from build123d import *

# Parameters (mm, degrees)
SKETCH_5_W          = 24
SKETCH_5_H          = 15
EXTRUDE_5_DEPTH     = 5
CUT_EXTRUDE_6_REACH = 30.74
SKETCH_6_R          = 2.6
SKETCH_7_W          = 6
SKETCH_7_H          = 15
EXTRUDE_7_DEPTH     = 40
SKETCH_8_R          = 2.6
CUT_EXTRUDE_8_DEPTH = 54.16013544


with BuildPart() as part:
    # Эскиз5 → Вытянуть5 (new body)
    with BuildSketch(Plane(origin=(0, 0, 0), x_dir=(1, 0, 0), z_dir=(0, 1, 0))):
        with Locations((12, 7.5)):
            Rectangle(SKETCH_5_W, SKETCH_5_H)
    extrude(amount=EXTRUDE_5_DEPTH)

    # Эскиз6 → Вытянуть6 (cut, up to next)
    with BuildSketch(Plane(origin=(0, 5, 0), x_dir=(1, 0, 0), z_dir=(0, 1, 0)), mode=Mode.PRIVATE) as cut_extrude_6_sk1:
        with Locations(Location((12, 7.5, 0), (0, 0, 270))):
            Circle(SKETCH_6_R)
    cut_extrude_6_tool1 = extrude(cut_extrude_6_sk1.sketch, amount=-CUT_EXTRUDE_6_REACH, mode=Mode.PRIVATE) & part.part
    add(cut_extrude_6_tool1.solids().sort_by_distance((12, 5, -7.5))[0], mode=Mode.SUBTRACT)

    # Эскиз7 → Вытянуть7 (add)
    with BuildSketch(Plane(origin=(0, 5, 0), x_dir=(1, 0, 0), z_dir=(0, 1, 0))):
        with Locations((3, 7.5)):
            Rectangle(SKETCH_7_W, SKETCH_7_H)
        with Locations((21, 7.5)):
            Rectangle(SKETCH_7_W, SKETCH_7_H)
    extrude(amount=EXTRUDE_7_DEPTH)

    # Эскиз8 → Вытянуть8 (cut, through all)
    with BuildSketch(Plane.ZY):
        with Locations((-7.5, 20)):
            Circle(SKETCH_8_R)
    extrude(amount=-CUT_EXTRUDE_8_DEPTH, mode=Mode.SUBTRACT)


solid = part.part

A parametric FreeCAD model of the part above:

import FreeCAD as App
import Part
import Sketcher
Q = App.Units.Quantity

doc = App.newDocument("Part")
params = doc.addObject("Spreadsheet::Sheet", "Params")
for row, (alias, value) in enumerate([
    ("sketch1_width", "24 mm"),
    ("sketch1_height", "15 mm"),
    ("pad1_length", "5 mm"),
    ("sketch2_diameter", "5.2 mm"),
    ("sketch3_width", "6 mm"),
    ("sketch3_height", "15 mm"),
    ("pad2_length", "40 mm"),
    ("sketch4_diameter", "5.2 mm"),
], start=1):
    params.set(f"A{row}", alias)
    params.set(f"B{row}", "=" + value)
    params.setAlias(f"B{row}", alias)

body = doc.addObject("PartDesign::Body", "Body")

# Sketch on XZ plane
sketch1 = body.newObject("Sketcher::SketchObject", "Sketch")
sketch1.AttachmentSupport = (doc.getObject("XZ_Plane"), [""])
sketch1.MapMode = "FlatFace"
sketch1.addGeometry(Part.LineSegment(App.Vector(0, -15, 0), App.Vector(0, 0, 0)), False)
sketch1.addGeometry(Part.LineSegment(App.Vector(0, 0, 0), App.Vector(24, 0, 0)), False)
sketch1.addGeometry(Part.LineSegment(App.Vector(24, 0, 0), App.Vector(24, -15, 0)), False)
sketch1.addGeometry(Part.LineSegment(App.Vector(24, -15, 0), App.Vector(0, -15, 0)), False)
sketch1.addConstraint(Sketcher.Constraint("Coincident", 0, 2, 1, 1))
sketch1.addConstraint(Sketcher.Constraint("Coincident", 1, 2, 2, 1))
sketch1.addConstraint(Sketcher.Constraint("Coincident", 2, 2, 3, 1))
sketch1.addConstraint(Sketcher.Constraint("Coincident", 3, 2, 0, 1))
sketch1.addConstraint(Sketcher.Constraint("Vertical", 0))
sketch1.addConstraint(Sketcher.Constraint("Horizontal", 1))
sketch1.addConstraint(Sketcher.Constraint("Vertical", 2))
sketch1.addConstraint(Sketcher.Constraint("Horizontal", 3))
sketch1.addConstraint(Sketcher.Constraint("Coincident", 0, 2, -1, 1))
sketch1.addConstraint(Sketcher.Constraint("DistanceX", 1, 1, 1, 2, Q("24 mm")))
sketch1.addConstraint(Sketcher.Constraint("DistanceY", 0, 1, 0, 2, Q("15 mm")))
sketch1.setExpression("Constraints[9]", "Params.sketch1_width")
sketch1.setExpression("Constraints[10]", "Params.sketch1_height")
pad1 = body.newObject("PartDesign::Pad", "Pad")
pad1.Profile = sketch1
pad1.setExpression("Length", "Params.pad1_length")
pad1.Reversed = True

# Sketch on XZ plane
sketch2 = body.newObject("Sketcher::SketchObject", "Sketch001")
sketch2.AttachmentSupport = (doc.getObject("XZ_Plane"), [""])
sketch2.MapMode = "FlatFace"
sketch2.AttachmentOffset = App.Placement(App.Vector(0, 0, -5), App.Rotation())
sketch2.addGeometry(Part.Circle(App.Vector(12, -7.5, 0), App.Vector(0, 0, 1), 2.6), False)
sketch2.addConstraint(Sketcher.Constraint("Diameter", 0, Q("5.2 mm")))
sketch2.addConstraint(Sketcher.Constraint("DistanceX", -1, 1, 0, 3, Q("12 mm")))
sketch2.addConstraint(Sketcher.Constraint("DistanceY", 0, 3, -1, 1, Q("7.5 mm")))
sketch2.setExpression("Constraints[0]", "Params.sketch2_diameter")
pocket1 = body.newObject("PartDesign::Pocket", "Pocket")
pocket1.Profile = sketch2
pocket1.Type = "UpToFirst"
pocket1.Reversed = True

# Sketch on XZ plane
sketch3 = body.newObject("Sketcher::SketchObject", "Sketch002")
sketch3.AttachmentSupport = (doc.getObject("XZ_Plane"), [""])
sketch3.MapMode = "FlatFace"
sketch3.AttachmentOffset = App.Placement(App.Vector(0, 0, -5), App.Rotation())
sketch3.addGeometry(Part.LineSegment(App.Vector(0, -15, 0), App.Vector(0, 0, 0)), False)
sketch3.addGeometry(Part.LineSegment(App.Vector(0, 0, 0), App.Vector(6, 0, 0)), False)
sketch3.addGeometry(Part.LineSegment(App.Vector(6, 0, 0), App.Vector(6, -15, 0)), False)
sketch3.addGeometry(Part.LineSegment(App.Vector(6, -15, 0), App.Vector(0, -15, 0)), False)
sketch3.addGeometry(Part.LineSegment(App.Vector(18, -15, 0), App.Vector(18, 0, 0)), False)
sketch3.addGeometry(Part.LineSegment(App.Vector(18, 0, 0), App.Vector(24, 0, 0)), False)
sketch3.addGeometry(Part.LineSegment(App.Vector(24, 0, 0), App.Vector(24, -15, 0)), False)
sketch3.addGeometry(Part.LineSegment(App.Vector(24, -15, 0), App.Vector(18, -15, 0)), False)
sketch3.addConstraint(Sketcher.Constraint("Coincident", 0, 2, 1, 1))
sketch3.addConstraint(Sketcher.Constraint("Coincident", 1, 2, 2, 1))
sketch3.addConstraint(Sketcher.Constraint("Coincident", 2, 2, 3, 1))
sketch3.addConstraint(Sketcher.Constraint("Coincident", 3, 2, 0, 1))
sketch3.addConstraint(Sketcher.Constraint("Coincident", 4, 2, 5, 1))
sketch3.addConstraint(Sketcher.Constraint("Coincident", 5, 2, 6, 1))
sketch3.addConstraint(Sketcher.Constraint("Coincident", 6, 2, 7, 1))
sketch3.addConstraint(Sketcher.Constraint("Coincident", 7, 2, 4, 1))
sketch3.addConstraint(Sketcher.Constraint("Vertical", 0))
sketch3.addConstraint(Sketcher.Constraint("Horizontal", 1))
sketch3.addConstraint(Sketcher.Constraint("Vertical", 2))
sketch3.addConstraint(Sketcher.Constraint("Horizontal", 3))
sketch3.addConstraint(Sketcher.Constraint("Vertical", 4))
sketch3.addConstraint(Sketcher.Constraint("Horizontal", 5))
sketch3.addConstraint(Sketcher.Constraint("Vertical", 6))
sketch3.addConstraint(Sketcher.Constraint("Horizontal", 7))
sketch3.addConstraint(Sketcher.Constraint("Coincident", 0, 2, -1, 1))
sketch3.addConstraint(Sketcher.Constraint("PointOnObject", 4, 2, -1))
sketch3.addConstraint(Sketcher.Constraint("Horizontal", 3, 2, 6, 2))
sketch3.addConstraint(Sketcher.Constraint("Equal", 3, 5))
sketch3.addConstraint(Sketcher.Constraint("DistanceX", 1, 1, 1, 2, Q("6 mm")))
sketch3.addConstraint(Sketcher.Constraint("DistanceY", 0, 1, 0, 2, Q("15 mm")))
sketch3.addConstraint(Sketcher.Constraint("DistanceX", -1, 1, 4, 2, Q("18 mm")))
sketch3.setExpression("Constraints[20]", "Params.sketch3_width")
sketch3.setExpression("Constraints[21]", "Params.sketch3_height")
pad2 = body.newObject("PartDesign::Pad", "Pad001")
pad2.Profile = sketch3
pad2.setExpression("Length", "Params.pad2_length")
pad2.Reversed = True

# Sketch on YZ plane
sketch4 = body.newObject("Sketcher::SketchObject", "Sketch003")
sketch4.AttachmentSupport = (doc.getObject("YZ_Plane"), [""])
sketch4.MapMode = "FlatFace"
sketch4.addGeometry(Part.Circle(App.Vector(20, -7.5, 0), App.Vector(0, 0, 1), 2.6), False)
sketch4.addConstraint(Sketcher.Constraint("Diameter", 0, Q("5.2 mm")))
sketch4.addConstraint(Sketcher.Constraint("DistanceX", -1, 1, 0, 3, Q("20 mm")))
sketch4.addConstraint(Sketcher.Constraint("DistanceY", 0, 3, -1, 1, Q("7.5 mm")))
sketch4.setExpression("Constraints[0]", "Params.sketch4_diameter")
pocket2 = body.newObject("PartDesign::Pocket", "Pocket001")
pocket2.Profile = sketch4
pocket2.Type = "ThroughAll"
pocket2.Reversed = True

doc.recompute()
